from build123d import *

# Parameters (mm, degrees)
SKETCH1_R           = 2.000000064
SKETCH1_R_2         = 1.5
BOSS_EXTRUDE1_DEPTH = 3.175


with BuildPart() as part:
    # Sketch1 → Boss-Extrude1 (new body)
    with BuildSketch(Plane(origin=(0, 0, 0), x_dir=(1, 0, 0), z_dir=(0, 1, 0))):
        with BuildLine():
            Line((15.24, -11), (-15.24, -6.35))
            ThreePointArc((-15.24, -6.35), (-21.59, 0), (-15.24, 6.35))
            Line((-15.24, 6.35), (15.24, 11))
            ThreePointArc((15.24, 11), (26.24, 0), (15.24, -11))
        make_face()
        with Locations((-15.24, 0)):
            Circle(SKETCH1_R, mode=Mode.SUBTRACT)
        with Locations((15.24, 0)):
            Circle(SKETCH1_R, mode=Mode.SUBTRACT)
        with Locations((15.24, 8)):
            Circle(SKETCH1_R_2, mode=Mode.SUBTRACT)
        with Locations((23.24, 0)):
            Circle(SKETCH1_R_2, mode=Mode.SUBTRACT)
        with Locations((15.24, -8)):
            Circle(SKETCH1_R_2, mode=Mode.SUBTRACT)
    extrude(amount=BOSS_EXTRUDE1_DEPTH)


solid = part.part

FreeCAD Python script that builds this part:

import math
import FreeCAD as App
import Part
import Sketcher

V = App.Vector
Q = App.Units.Quantity

doc = App.newDocument("Part")
body = doc.addObject("PartDesign::Body", "Body")

# Sketch on XZ plane
sketch1 = doc.addObject("Sketcher::SketchObject", "Sketch")
body.addObject(sketch1)
sketch1.AttachmentSupport = (doc.XZ_Plane, [""])
sketch1.MapMode = "FlatFace"
sketch1.addGeometry([
    Part.LineSegment(V(-15.2, 6.3, 0), V(15.2, 11, 0)),  # 0
    Part.ArcOfCircle(Part.Circle(V(15.2, 0, 0), V(0, 0, 1), 11), math.radians(-90), math.radians(90)),  # 1
    Part.LineSegment(V(15.2, -11, 0), V(-15.2, -6.3, 0)),  # 2
    Part.ArcOfCircle(Part.Circle(V(-15.2, 0, 0), V(0, 0, 1), 6.3), math.radians(90), math.radians(270)),  # 3
    Part.Circle(V(15.2, 8, 0), V(0, 0, 1), 1.5),  # 4
    Part.Circle(V(23.2, 0, 0), V(0, 0, 1), 1.5),  # 5
    Part.Circle(V(15.2, 0, 0), V(0, 0, 1), 2),  # 6
    Part.Circle(V(15.2, -8, 0), V(0, 0, 1), 1.5),  # 7
    Part.Circle(V(-15.2, 0, 0), V(0, 0, 1), 2),  # 8
], False)
sketch1.addConstraint([
    Sketcher.Constraint("Coincident", 0, 2, 1, 2),
    Sketcher.Constraint("Coincident", 1, 1, 2, 1),
    Sketcher.Constraint("Coincident", 2, 2, 3, 2),
    Sketcher.Constraint("Coincident", 3, 1, 0, 1),
    Sketcher.Constraint("Coincident", 6, 3, 1, 3),
    Sketcher.Constraint("Coincident", 8, 3, 3, 3),
    Sketcher.Constraint("Equal", 4, 5),
    Sketcher.Constraint("Equal", 5, 7),
    Sketcher.Constraint("Equal", 6, 8),
    Sketcher.Constraint("Symmetric", 1, 3, 3, 3, -1, 1),
    Sketcher.Constraint("Symmetric", 4, 3, 7, 3, -1),
    Sketcher.Constraint("Symmetric", 0, 2, 1, 1, -1),
    Sketcher.Constraint("PointOnObject", 5, 3, -1),
    Sketcher.Constraint("Vertical", 1, 3, 4, 3),
    Sketcher.Constraint("Vertical", 7, 3, 0, 2),
    Sketcher.Constraint("Vertical", 8, 3, 2, 2),
    Sketcher.Constraint("Vertical", 2, 2, 3, 1),
    Sketcher.Constraint("Diameter", 4, Q("3 mm")),
    Sketcher.Constraint("Diameter", 6, Q("4 mm")),
    Sketcher.Constraint("Radius", 1, Q("11 mm")),
    Sketcher.Constraint("Radius", 3, Q("6.35 mm")),
    Sketcher.Constraint("DistanceY", -1, 1, 4, 3, Q("8 mm")),
    Sketcher.Constraint("DistanceX", 1, 3, 5, 3, Q("8 mm")),
    Sketcher.Constraint("DistanceX", -1, 1, 1, 3, Q("15.24 mm")),
])
pad1 = doc.addObject("PartDesign::Pad", "Pad")
body.addObject(pad1)
pad1.Profile = sketch1
pad1.Length = 3.175
pad1.Reversed = True

doc.recompute()
